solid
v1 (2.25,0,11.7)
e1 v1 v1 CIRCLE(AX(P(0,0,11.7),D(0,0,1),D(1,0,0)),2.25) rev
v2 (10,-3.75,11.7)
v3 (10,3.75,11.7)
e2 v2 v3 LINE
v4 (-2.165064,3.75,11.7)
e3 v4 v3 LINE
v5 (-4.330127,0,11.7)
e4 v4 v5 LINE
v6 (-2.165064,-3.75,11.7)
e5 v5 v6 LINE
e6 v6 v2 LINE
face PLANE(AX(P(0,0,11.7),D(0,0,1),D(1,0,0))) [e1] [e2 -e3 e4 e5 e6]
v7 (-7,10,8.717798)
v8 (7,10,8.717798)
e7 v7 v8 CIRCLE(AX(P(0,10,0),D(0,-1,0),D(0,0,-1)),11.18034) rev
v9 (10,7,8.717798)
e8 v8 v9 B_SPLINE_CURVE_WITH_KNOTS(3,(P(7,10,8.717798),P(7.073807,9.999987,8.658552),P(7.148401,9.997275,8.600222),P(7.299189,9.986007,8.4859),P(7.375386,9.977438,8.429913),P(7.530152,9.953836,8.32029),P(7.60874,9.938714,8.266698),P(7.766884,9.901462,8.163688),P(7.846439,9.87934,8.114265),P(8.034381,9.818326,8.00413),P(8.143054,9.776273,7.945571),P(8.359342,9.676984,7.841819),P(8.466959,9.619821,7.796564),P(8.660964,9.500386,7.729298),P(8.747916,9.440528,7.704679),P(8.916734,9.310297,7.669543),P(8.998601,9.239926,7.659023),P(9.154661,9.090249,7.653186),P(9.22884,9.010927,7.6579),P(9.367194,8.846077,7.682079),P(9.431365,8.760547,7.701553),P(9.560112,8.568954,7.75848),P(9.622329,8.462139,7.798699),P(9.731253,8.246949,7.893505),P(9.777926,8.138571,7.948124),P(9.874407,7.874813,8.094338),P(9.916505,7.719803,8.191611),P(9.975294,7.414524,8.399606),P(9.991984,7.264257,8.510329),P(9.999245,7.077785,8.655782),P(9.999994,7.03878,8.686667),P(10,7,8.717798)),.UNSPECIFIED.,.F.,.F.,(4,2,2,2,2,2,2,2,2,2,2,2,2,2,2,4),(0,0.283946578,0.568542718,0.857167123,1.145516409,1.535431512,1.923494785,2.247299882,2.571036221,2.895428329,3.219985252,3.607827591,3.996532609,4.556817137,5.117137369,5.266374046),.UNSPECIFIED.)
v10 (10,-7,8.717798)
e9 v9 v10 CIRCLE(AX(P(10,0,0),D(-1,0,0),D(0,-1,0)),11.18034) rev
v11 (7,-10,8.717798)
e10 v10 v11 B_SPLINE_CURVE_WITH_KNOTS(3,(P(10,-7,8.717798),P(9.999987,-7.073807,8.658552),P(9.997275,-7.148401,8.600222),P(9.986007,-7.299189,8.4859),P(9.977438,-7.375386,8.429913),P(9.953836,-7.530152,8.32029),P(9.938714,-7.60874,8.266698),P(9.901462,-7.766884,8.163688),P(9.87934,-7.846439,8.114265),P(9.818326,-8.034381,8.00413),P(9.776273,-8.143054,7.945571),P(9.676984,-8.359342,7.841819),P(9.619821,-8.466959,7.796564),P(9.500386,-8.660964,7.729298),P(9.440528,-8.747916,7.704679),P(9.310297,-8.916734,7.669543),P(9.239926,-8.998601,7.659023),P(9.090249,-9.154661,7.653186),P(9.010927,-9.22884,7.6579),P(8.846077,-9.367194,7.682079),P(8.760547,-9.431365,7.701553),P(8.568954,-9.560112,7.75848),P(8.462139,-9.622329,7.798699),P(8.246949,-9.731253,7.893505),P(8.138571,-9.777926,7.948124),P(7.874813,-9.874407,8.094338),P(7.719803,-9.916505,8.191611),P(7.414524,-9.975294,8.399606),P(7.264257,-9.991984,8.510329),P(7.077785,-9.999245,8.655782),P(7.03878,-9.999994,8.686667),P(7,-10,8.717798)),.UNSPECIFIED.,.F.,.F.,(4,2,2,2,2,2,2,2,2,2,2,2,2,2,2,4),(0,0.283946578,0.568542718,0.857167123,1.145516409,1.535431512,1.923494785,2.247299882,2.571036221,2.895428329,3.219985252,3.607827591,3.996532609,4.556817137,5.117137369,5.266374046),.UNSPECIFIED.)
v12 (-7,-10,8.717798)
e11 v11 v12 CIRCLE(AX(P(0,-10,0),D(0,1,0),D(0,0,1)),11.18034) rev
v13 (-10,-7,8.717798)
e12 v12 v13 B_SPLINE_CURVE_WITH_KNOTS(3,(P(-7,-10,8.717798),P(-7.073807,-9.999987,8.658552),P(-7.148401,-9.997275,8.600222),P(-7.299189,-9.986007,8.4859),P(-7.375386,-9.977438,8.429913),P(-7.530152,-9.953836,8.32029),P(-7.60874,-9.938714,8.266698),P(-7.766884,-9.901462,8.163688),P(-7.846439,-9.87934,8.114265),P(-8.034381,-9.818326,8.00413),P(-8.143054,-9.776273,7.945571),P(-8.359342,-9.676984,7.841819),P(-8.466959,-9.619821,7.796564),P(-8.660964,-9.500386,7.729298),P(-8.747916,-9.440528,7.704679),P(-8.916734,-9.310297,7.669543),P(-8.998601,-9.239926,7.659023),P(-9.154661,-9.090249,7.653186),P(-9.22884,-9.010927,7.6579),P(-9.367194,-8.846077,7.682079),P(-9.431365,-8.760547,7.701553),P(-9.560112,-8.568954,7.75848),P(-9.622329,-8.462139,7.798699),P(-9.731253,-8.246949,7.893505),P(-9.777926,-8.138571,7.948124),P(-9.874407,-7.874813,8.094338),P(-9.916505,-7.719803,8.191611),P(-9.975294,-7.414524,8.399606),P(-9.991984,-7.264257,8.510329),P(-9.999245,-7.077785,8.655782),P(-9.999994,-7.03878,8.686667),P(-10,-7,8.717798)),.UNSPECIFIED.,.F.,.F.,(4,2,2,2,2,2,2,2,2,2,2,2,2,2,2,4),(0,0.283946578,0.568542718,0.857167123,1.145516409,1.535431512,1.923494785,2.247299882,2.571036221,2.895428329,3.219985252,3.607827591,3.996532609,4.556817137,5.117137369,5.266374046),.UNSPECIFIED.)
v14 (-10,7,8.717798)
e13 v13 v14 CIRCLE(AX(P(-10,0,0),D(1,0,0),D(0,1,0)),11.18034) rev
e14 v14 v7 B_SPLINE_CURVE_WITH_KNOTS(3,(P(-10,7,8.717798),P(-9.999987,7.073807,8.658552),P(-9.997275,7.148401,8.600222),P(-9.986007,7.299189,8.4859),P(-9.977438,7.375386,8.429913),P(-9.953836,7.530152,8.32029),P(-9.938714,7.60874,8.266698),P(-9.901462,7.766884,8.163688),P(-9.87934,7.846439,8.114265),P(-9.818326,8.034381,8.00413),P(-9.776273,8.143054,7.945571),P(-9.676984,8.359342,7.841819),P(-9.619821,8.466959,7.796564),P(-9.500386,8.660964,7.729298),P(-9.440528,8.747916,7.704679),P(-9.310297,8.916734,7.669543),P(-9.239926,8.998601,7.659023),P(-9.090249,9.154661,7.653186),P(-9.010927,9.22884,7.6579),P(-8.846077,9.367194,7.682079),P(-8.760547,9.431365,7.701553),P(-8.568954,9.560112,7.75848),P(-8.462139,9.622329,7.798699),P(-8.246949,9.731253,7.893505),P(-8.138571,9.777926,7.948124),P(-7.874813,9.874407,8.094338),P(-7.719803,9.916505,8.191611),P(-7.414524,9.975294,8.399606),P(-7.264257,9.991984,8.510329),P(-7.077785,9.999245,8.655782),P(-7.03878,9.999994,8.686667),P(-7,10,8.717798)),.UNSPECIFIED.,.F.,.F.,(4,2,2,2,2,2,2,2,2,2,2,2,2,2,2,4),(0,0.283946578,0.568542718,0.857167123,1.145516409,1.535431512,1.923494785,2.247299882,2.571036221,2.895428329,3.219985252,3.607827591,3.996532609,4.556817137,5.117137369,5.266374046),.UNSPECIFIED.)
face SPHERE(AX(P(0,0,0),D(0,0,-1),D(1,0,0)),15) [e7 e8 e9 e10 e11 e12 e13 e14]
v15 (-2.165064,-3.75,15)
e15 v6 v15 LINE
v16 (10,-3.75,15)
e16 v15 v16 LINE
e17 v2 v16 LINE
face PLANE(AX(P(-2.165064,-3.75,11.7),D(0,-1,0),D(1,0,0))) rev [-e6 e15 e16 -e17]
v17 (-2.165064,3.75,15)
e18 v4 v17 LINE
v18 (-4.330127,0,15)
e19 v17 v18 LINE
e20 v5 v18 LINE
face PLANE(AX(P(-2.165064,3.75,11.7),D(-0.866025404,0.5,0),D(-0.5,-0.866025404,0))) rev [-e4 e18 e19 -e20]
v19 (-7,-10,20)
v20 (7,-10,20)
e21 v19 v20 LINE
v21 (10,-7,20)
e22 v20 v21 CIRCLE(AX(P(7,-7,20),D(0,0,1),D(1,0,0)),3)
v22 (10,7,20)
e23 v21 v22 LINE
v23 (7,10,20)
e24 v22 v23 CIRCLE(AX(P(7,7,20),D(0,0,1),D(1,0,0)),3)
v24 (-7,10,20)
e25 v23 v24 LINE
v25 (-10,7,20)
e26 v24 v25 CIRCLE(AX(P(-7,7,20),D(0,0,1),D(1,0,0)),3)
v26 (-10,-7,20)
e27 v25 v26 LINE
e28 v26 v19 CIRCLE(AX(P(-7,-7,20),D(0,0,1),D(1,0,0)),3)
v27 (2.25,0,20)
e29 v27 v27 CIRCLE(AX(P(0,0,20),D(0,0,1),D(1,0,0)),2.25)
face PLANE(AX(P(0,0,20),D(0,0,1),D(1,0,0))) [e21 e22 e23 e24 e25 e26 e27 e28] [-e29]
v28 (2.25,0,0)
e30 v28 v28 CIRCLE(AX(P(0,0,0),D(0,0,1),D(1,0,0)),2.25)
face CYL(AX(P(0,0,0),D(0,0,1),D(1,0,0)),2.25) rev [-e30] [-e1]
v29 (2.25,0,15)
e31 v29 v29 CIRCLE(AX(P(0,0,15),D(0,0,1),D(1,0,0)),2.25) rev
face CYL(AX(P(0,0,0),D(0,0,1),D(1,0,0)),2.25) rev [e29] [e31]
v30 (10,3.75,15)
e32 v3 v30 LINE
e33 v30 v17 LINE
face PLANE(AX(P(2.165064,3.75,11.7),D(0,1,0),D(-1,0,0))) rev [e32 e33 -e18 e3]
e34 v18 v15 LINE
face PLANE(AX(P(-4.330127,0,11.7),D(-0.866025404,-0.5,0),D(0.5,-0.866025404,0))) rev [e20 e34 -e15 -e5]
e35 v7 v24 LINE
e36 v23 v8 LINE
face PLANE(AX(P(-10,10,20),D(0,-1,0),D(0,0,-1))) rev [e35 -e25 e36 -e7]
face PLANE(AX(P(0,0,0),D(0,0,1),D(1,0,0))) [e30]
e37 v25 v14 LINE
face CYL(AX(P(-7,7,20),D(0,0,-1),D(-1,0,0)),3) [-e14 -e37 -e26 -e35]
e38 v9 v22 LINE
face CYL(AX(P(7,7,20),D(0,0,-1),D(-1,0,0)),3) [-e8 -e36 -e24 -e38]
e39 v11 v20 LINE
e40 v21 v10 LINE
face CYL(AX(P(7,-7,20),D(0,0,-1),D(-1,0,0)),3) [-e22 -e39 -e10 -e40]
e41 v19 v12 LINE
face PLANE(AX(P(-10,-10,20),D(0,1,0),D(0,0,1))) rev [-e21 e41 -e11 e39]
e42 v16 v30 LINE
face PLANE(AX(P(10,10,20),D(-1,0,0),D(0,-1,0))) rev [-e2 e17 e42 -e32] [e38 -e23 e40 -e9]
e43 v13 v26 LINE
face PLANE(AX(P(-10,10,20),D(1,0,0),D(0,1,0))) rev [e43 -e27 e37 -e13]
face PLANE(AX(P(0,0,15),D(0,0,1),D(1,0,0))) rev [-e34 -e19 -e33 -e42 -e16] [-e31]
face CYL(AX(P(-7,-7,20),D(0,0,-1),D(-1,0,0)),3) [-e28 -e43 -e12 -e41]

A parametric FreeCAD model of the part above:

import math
import FreeCAD as App
import Part
import Sketcher

V = App.Vector
Q = App.Units.Quantity


def edges_at(feature, points):
    """Names of the edges that pass closest to the given points."""
    edges = feature.Shape.Edges
    near = lambda p: min(range(len(edges)), key=lambda i: edges[i].distToShape(Part.Vertex(*p))[0])
    return sorted({f"Edge{near(p) + 1}" for p in points})


def add_polygon(sketch, points):
    """Adds a closed chain of lines whose ends are joined by coincident constraints."""
    first, n = sketch.GeometryCount, len(points)
    for a, b in zip(points, points[1:] + points[:1]):
        sketch.addGeometry(Part.LineSegment(App.Vector(*a, 0), App.Vector(*b, 0)), False)
    for i in range(n):
        sketch.addConstraint(Sketcher.Constraint("Coincident", first + i, 2, first + (i + 1) % n, 1))

doc = App.newDocument("Part")
body = doc.addObject("PartDesign::Body", "Body")

sketch1 = body.newObject("Sketcher::SketchObject", "Sketch")
sketch1.AttachmentSupport = (doc.getObject("XZ_Plane"), [""])
sketch1.MapMode = "FlatFace"
sketch1.addGeometry(Part.LineSegment(V(0, 15, 0), V(0, -15, 0)), False)
sketch1.addGeometry(Part.ArcOfCircle(Part.Circle(V(0, 0, 0), V(0, 0, 1), 15), math.radians(90), math.radians(270)), False)
sketch1.addConstraint(Sketcher.Constraint("Coincident", 0, 1, 1, 1))
sketch1.addConstraint(Sketcher.Constraint("Coincident", 1, 2, 0, 2))
sketch1.addConstraint(Sketcher.Constraint("Vertical", 0))
sketch1.addConstraint(Sketcher.Constraint("Coincident", 1, 3, -1, 1))
sketch1.addConstraint(Sketcher.Constraint("PointOnObject", 0, 1, -2))
sketch1.addConstraint(Sketcher.Constraint("Radius", 1, 15.0))
revolution = body.newObject("PartDesign::Revolution", "Revolution")
revolution.Profile = sketch1
revolution.ReferenceAxis = (sketch1, ["V_Axis"])
revolution.Angle = 360

sketch2 = body.newObject("Sketcher::SketchObject", "Sketch001")
sketch2.AttachmentSupport = (doc.getObject("XY_Plane"), [""])
sketch2.MapMode = "FlatFace"
add_polygon(sketch2, [(-10, 10), (-10, -10), (10, -10), (10, 10)])
sketch2.addConstraint(Sketcher.Constraint("Vertical", 0))
sketch2.addConstraint(Sketcher.Constraint("Horizontal", 1))
sketch2.addConstraint(Sketcher.Constraint("Vertical", 2))
sketch2.addConstraint(Sketcher.Constraint("Horizontal", 3))
sketch2.addConstraint(Sketcher.Constraint("Symmetric", 0, 2, 2, 2, -1, 1))
sketch2.addConstraint(Sketcher.Constraint("Equal", 3, 0))
sketch2.addConstraint(Sketcher.Constraint("DistanceX", 1, 1, 1, 2, 20.0))
pad1 = body.newObject("PartDesign::Pad", "Pad")
pad1.Profile = sketch2
pad1.Length = 20

sketch3 = body.newObject("Sketcher::SketchObject", "Sketch002")
sketch3.AttachmentSupport = (doc.getObject("XY_Plane"), [""])
sketch3.MapMode = "FlatFace"
sketch3.AttachmentOffset = App.Placement(V(0, 0, 20), App.Rotation())
sketch3.addGeometry(Part.Circle(V(0, 0, 0), V(0, 0, 1), 2.2), False)
sketch3.addConstraint(Sketcher.Constraint("Coincident", 0, 3, -1, 1))
sketch3.addConstraint(Sketcher.Constraint("Diameter", 0, 4.5))
pocket1 = body.newObject("PartDesign::Pocket", "Pocket")
pocket1.Profile = sketch3
pocket1.Length = 20

sketch4 = body.newObject("Sketcher::SketchObject", "Sketch003")
sketch4.AttachmentSupport = (doc.getObject("XY_Plane"), [""])
sketch4.MapMode = "FlatFace"
sketch4.AttachmentOffset = App.Placement(V(0, 0, 15), App.Rotation())
add_polygon(sketch4, [(10, 3.8), (-2.2, 3.8), (-4.3, 0), (-2.2, -3.8), (10, -3.8)])
sketch4.addConstraint(Sketcher.Constraint("Horizontal", 0))
sketch4.addConstraint(Sketcher.Constraint("Horizontal", 3))
sketch4.addConstraint(Sketcher.Constraint("Vertical", 4))
sketch4.addConstraint(Sketcher.Constraint("Symmetric", 0, 2, 2, 2, -1))
sketch4.addConstraint(Sketcher.Constraint("PointOnObject", 1, 2, -1))
sketch4.addConstraint(Sketcher.Constraint("Angle", 1, Q("-120 deg")))
sketch4.addConstraint(Sketcher.Constraint("DistanceY", 4, 1, 4, 2, 7.5))
sketch4.addConstraint(Sketcher.Constraint("DistanceX", -1, 1, 3, 2, 10.0))
sketch4.addConstraint(Sketcher.Constraint("DistanceX", 0, 2, 0, 1, 12.165064))
pocket2 = body.newObject("PartDesign::Pocket", "Pocket001")
pocket2.Profile = sketch4
pocket2.Length = 3.3
doc.recompute()

fillet = body.newObject("PartDesign::Fillet", "Fillet")
fillet.Base = (pocket2, edges_at(pocket2, [
    (10, -10, 12.5),
    (10, 10, 12.5),
    (-10, 10, 12.5),
    (-10, -10, 12.5),
]))
fillet.Radius = 3

doc.recompute()
